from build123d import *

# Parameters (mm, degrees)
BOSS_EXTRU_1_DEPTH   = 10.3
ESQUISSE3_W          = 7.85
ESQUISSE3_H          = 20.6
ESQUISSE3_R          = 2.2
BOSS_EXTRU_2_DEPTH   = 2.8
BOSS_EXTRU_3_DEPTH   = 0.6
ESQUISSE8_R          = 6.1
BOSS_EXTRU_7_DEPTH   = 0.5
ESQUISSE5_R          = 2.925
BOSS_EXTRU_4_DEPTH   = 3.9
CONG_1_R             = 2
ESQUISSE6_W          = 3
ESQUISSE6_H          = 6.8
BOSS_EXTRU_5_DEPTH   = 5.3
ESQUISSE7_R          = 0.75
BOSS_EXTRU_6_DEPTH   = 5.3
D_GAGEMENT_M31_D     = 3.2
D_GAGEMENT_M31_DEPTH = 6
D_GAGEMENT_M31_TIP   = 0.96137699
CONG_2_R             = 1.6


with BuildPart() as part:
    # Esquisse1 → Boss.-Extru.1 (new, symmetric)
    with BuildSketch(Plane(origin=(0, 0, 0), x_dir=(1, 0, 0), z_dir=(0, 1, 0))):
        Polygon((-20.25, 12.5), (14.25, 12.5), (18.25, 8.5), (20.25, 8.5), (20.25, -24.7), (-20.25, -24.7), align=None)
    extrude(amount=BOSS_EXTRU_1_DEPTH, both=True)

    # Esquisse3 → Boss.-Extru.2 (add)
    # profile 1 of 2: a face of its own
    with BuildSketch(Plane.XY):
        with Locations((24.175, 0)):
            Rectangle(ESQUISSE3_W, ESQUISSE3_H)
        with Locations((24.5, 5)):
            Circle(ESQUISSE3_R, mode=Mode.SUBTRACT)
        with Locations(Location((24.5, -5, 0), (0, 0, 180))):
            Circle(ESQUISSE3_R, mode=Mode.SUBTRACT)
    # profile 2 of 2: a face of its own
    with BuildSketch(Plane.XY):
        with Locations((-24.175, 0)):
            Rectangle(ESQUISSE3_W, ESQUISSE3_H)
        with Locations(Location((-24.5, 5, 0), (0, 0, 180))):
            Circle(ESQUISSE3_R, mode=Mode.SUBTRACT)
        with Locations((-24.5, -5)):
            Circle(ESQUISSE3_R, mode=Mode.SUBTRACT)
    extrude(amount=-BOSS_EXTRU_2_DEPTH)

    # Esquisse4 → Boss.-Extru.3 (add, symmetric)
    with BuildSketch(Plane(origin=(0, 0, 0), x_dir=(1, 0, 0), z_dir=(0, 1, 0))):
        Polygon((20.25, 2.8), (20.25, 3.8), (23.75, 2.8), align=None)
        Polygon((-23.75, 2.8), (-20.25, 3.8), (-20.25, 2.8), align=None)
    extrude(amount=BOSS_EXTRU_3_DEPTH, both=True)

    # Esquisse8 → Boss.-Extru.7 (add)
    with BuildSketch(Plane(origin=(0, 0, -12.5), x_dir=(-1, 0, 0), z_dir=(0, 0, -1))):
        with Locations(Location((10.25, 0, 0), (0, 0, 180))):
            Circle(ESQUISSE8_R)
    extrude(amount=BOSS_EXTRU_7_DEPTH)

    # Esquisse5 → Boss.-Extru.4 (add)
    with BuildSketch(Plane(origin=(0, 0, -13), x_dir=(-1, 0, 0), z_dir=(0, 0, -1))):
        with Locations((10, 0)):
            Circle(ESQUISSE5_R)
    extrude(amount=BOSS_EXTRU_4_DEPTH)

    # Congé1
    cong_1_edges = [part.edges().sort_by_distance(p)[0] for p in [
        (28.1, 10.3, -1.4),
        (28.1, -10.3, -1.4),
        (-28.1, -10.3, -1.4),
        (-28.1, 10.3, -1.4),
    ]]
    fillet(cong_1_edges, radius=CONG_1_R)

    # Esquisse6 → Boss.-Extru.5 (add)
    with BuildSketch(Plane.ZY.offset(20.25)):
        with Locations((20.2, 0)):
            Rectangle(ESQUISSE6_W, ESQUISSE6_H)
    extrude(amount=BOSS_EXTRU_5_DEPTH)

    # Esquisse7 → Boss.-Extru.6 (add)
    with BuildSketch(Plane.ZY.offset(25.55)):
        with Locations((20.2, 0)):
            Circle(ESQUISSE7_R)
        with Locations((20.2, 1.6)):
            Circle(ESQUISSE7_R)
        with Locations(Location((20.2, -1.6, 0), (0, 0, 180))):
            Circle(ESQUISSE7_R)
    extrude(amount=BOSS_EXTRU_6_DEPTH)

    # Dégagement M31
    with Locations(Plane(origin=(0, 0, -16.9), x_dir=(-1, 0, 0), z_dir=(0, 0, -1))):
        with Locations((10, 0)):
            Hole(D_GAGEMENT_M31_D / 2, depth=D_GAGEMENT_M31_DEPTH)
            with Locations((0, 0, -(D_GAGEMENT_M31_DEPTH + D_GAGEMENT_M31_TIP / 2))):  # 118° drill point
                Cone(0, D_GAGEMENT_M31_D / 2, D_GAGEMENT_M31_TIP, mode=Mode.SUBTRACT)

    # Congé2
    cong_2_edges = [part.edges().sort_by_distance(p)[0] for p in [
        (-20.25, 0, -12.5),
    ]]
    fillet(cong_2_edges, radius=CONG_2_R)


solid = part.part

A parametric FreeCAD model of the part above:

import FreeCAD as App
import Part
import Sketcher

V = App.Vector
Q = App.Units.Quantity


def edges_at(feature, points):
    """Names of the edges that pass closest to the given points."""
    edges = feature.Shape.Edges
    near = lambda p: min(range(len(edges)), key=lambda i: edges[i].distToShape(Part.Vertex(*p))[0])
    return sorted({f"Edge{near(p) + 1}" for p in points})

doc = App.newDocument("Part")
params = doc.addObject("Spreadsheet::Sheet", "Params")
for row, (alias, value) in enumerate([
    ("sketch1_width", "2 mm"),
    ("sketch1_width2", "34.5 mm"),
    ("sketch1_width3", "40.5 mm"),
    ("sketch1_height", "37.2 mm"),
    ("pad1_length", "20.6 mm"),
    ("sketch2_diameter", "4.4 mm"),
    ("sketch2_height", "20.6 mm"),
    ("sketch2_width", "7.85 mm"),
    ("pad2_length", "2.8 mm"),
    ("sketch3_height", "1 mm"),
    ("sketch3_width", "3.5 mm"),
    ("pad3_length", "1.2 mm"),
    ("sketch4_diameter", "12.2 mm"),
    ("pad4_length", "0.5 mm"),
    ("sketch5_diameter", "5.85 mm"),
    ("pad5_length", "3.9 mm"),
    ("fillet_radius", "2 mm"),
    ("sketch6_height", "3 mm"),
    ("sketch6_width", "6.8 mm"),
    ("pad6_length", "5.3 mm"),
    ("sketch7_diameter", "1.5 mm"),
    ("pad7_length", "5.3 mm"),
    ("sketch8_diameter", "3.2 mm"),
    ("hole_diameter", "3.2 mm"),
    ("hole_depth", "6 mm"),
    ("fillet2_radius", "1.6 mm"),
], start=1):
    params.set(f"A{row}", alias)
    params.set(f"B{row}", "=" + value)
    params.setAlias(f"B{row}", alias)

body = doc.addObject("PartDesign::Body", "Body")

# Sketch on XZ plane
sketch1 = doc.addObject("Sketcher::SketchObject", "Sketch")
body.addObject(sketch1)
sketch1.AttachmentSupport = (doc.XZ_Plane, [""])
sketch1.MapMode = "FlatFace"
sketch1.addGeometry([
    Part.LineSegment(V(14.2, -12.5, 0), V(-20.2, -12.5, 0)),  # 0
    Part.LineSegment(V(-20.2, -12.5, 0), V(-20.2, 24.7, 0)),  # 1
    Part.LineSegment(V(-20.2, 24.7, 0), V(20.2, 24.7, 0)),  # 2
    Part.LineSegment(V(20.2, 24.7, 0), V(20.2, -8.5, 0)),  # 3
    Part.LineSegment(V(20.2, -8.5, 0), V(18.2, -8.5, 0)),  # 4
    Part.LineSegment(V(18.2, -8.5, 0), V(14.2, -12.5, 0)),  # 5
], False)
sketch1.addConstraint([
    Sketcher.Constraint("Coincident", 0, 2, 1, 1),
    Sketcher.Constraint("Coincident", 1, 2, 2, 1),
    Sketcher.Constraint("Coincident", 2, 2, 3, 1),
    Sketcher.Constraint("Coincident", 3, 2, 4, 1),
    Sketcher.Constraint("Coincident", 4, 2, 5, 1),
    Sketcher.Constraint("Coincident", 5, 2, 0, 1),
    Sketcher.Constraint("Horizontal", 0),
    Sketcher.Constraint("Vertical", 1),
    Sketcher.Constraint("Horizontal", 2),
    Sketcher.Constraint("Vertical", 3),
    Sketcher.Constraint("Horizontal", 4),
    Sketcher.Constraint("DistanceX", 4, 2, 4, 1, 2.0),
    Sketcher.Constraint("Angle", 5, Q("-135 deg")),
    Sketcher.Constraint("DistanceX", 0, 2, 0, 1, 34.5),
    Sketcher.Constraint("DistanceX", 2, 1, 2, 2, 40.5),
    Sketcher.Constraint("DistanceY", 1, 1, 1, 2, 37.2),
    Sketcher.Constraint("DistanceY", 0, 2, -1, 1, 12.5),
    Sketcher.Constraint("DistanceX", 0, 2, -1, 1, 20.25),
])
sketch1.setExpression("Constraints[11]", "Params.sketch1_width")
sketch1.setExpression("Constraints[13]", "Params.sketch1_width2")
sketch1.setExpression("Constraints[14]", "Params.sketch1_width3")
sketch1.setExpression("Constraints[15]", "Params.sketch1_height")
pad1 = doc.addObject("PartDesign::Pad", "Pad")
body.addObject(pad1)
pad1.Profile = sketch1
pad1.setExpression("Length", "Params.pad1_length")
pad1.Midplane = True

# Sketch on XY plane
sketch2 = doc.addObject("Sketcher::SketchObject", "Sketch001")
body.addObject(sketch2)
sketch2.AttachmentSupport = (doc.XY_Plane, [""])
sketch2.MapMode = "FlatFace"
sketch2.addGeometry([
    Part.LineSegment(V(20.2, 10.3, 0), V(20.2, -10.3, 0)),  # 0
    Part.LineSegment(V(20.2, -10.3, 0), V(28.1, -10.3, 0)),  # 1
    Part.LineSegment(V(28.1, -10.3, 0), V(28.1, 10.3, 0)),  # 2
    Part.LineSegment(V(28.1, 10.3, 0), V(20.2, 10.3, 0)),  # 3
    Part.Circle(V(24.5, -5, 0), V(0, 0, 1), 2.2),  # 4
    Part.Circle(V(24.5, 5, 0), V(0, 0, 1), 2.2),  # 5
    Part.LineSegment(V(-28.1, 10.3, 0), V(-28.1, -10.3, 0)),  # 6
    Part.LineSegment(V(-28.1, -10.3, 0), V(-20.2, -10.3, 0)),  # 7
    Part.LineSegment(V(-20.2, -10.3, 0), V(-20.2, 10.3, 0)),  # 8
    Part.LineSegment(V(-20.2, 10.3, 0), V(-28.1, 10.3, 0)),  # 9
    Part.Circle(V(-24.5, -5, 0), V(0, 0, 1), 2.2),  # 10
    Part.Circle(V(-24.5, 5, 0), V(0, 0, 1), 2.2),  # 11
], False)
sketch2.addConstraint([
    Sketcher.Constraint("Coincident", 0, 2, 1, 1),
    Sketcher.Constraint("Coincident", 1, 2, 2, 1),
    Sketcher.Constraint("Coincident", 2, 2, 3, 1),
    Sketcher.Constraint("Coincident", 3, 2, 0, 1),
    Sketcher.Constraint("Coincident", 6, 2, 7, 1),
    Sketcher.Constraint("Coincident", 7, 2, 8, 1),
    Sketcher.Constraint("Coincident", 8, 2, 9, 1),
    Sketcher.Constraint("Coincident", 9, 2, 6, 1),
    Sketcher.Constraint("Vertical", 0),
    Sketcher.Constraint("Horizontal", 1),
    Sketcher.Constraint("Vertical", 2),
    Sketcher.Constraint("Horizontal", 3),
    Sketcher.Constraint("Vertical", 6),
    Sketcher.Constraint("Horizontal", 7),
    Sketcher.Constraint("Vertical", 8),
    Sketcher.Constraint("Horizontal", 9),
    Sketcher.Constraint("Equal", 4, 5),
    Sketcher.Constraint("Equal", 5, 10),
    Sketcher.Constraint("Equal", 10, 11),
    Sketcher.Constraint("Symmetric", 5, 3, 10, 3, -1, 1),
    Sketcher.Constraint("Symmetric", 4, 3, 11, 3, -1, 1),
    Sketcher.Constraint("Symmetric", 2, 2, 6, 2, -1, 1),
    Sketcher.Constraint("Symmetric", 0, 2, 8, 2, -1, 1),
    Sketcher.Constraint("Symmetric", 4, 3, 10, 3, -2),
    Sketcher.Constraint("Horizontal", 1, 2, 6, 2),
    Sketcher.Constraint("Diameter", 4, 4.4),
    Sketcher.Constraint("DistanceY", 0, 2, 0, 1, 20.6),
    Sketcher.Constraint("DistanceY", 4, 3, -1, 1, 5.0),
    Sketcher.Constraint("DistanceX", 10, 3, 4, 3, 49.0),
    Sketcher.Constraint("DistanceX", 1, 1, 1, 2, 7.85),
    Sketcher.Constraint("DistanceX", -1, 1, 1, 2, 28.1),
])
sketch2.setExpression("Constraints[25]", "Params.sketch2_diameter")
sketch2.setExpression("Constraints[26]", "Params.sketch2_height")
sketch2.setExpression("Constraints[29]", "Params.sketch2_width")
pad2 = doc.addObject("PartDesign::Pad", "Pad001")
body.addObject(pad2)
pad2.Profile = sketch2
pad2.setExpression("Length", "Params.pad2_length")
pad2.Reversed = True

# Sketch on XZ plane
sketch3 = doc.addObject("Sketcher::SketchObject", "Sketch002")
body.addObject(sketch3)
sketch3.AttachmentSupport = (doc.XZ_Plane, [""])
sketch3.MapMode = "FlatFace"
sketch3.addGeometry([
    Part.LineSegment(V(20.2, -3.8, 0), V(20.2, -2.8, 0)),  # 0
    Part.LineSegment(V(20.2, -2.8, 0), V(23.8, -2.8, 0)),  # 1
    Part.LineSegment(V(23.8, -2.8, 0), V(20.2, -3.8, 0)),  # 2
    Part.LineSegment(V(-20.2, -3.8, 0), V(-23.8, -2.8, 0)),  # 3
    Part.LineSegment(V(-23.8, -2.8, 0), V(-20.2, -2.8, 0)),  # 4
    Part.LineSegment(V(-20.2, -2.8, 0), V(-20.2, -3.8, 0)),  # 5
], False)
sketch3.addConstraint([
    Sketcher.Constraint("Coincident", 0, 2, 1, 1),
    Sketcher.Constraint("Coincident", 1, 2, 2, 1),
    Sketcher.Constraint("Coincident", 2, 2, 0, 1),
    Sketcher.Constraint("Coincident", 3, 2, 4, 1),
    Sketcher.Constraint("Coincident", 4, 2, 5, 1),
    Sketcher.Constraint("Coincident", 5, 2, 3, 1),
    Sketcher.Constraint("Vertical", 0),
    Sketcher.Constraint("Horizontal", 1),
    Sketcher.Constraint("Horizontal", 4),
    Sketcher.Constraint("Vertical", 5),
    Sketcher.Constraint("Symmetric", 1, 2, 3, 2, -2),
    Sketcher.Constraint("Symmetric", 2, 2, 5, 2, -2),
    Sketcher.Constraint("DistanceY", 0, 1, 0, 2, 1.0),
    Sketcher.Constraint("DistanceX", 1, 1, 1, 2, 3.5),
    Sketcher.Constraint("DistanceX", 3, 2, 0, 2, 44.0),
    Sketcher.Constraint("DistanceY", 0, 2, -1, 1, 2.8),
])
sketch3.setExpression("Constraints[12]", "Params.sketch3_height")
sketch3.setExpression("Constraints[13]", "Params.sketch3_width")
pad3 = doc.addObject("PartDesign::Pad", "Pad002")
body.addObject(pad3)
pad3.Profile = sketch3
pad3.setExpression("Length", "Params.pad3_length")
pad3.Midplane = True

# Sketch on XY plane
sketch4 = doc.addObject("Sketcher::SketchObject", "Sketch003")
body.addObject(sketch4)
sketch4.AttachmentSupport = (doc.XY_Plane, [""])
sketch4.MapMode = "FlatFace"
sketch4.AttachmentOffset = App.Placement(V(0, 0, -12.5), App.Rotation())
sketch4.addGeometry(Part.Circle(V(-10, 0, 0), V(0, 0, 1), 6), False)
sketch4.addConstraint([
    Sketcher.Constraint("PointOnObject", 0, 3, -1),
    Sketcher.Constraint("Diameter", 0, 12.2),
    Sketcher.Constraint("DistanceX", 0, 3, -1, 1, 10.25),
])
sketch4.setExpression("Constraints[1]", "Params.sketch4_diameter")
pad4 = doc.addObject("PartDesign::Pad", "Pad003")
body.addObject(pad4)
pad4.Profile = sketch4
pad4.setExpression("Length", "Params.pad4_length")
pad4.Reversed = True

# Sketch on XY plane
sketch5 = doc.addObject("Sketcher::SketchObject", "Sketch004")
body.addObject(sketch5)
sketch5.AttachmentSupport = (doc.XY_Plane, [""])
sketch5.MapMode = "FlatFace"
sketch5.AttachmentOffset = App.Placement(V(0, 0, -13), App.Rotation())
sketch5.addGeometry(Part.Circle(V(-10, 0, 0), V(0, 0, 1), 2.9), False)
sketch5.addConstraint([
    Sketcher.Constraint("PointOnObject", 0, 3, -1),
    Sketcher.Constraint("Diameter", 0, 5.85),
    Sketcher.Constraint("DistanceX", 0, 3, -1, 1, 10.0),
])
sketch5.setExpression("Constraints[1]", "Params.sketch5_diameter")
pad5 = doc.addObject("PartDesign::Pad", "Pad004")
body.addObject(pad5)
pad5.Profile = sketch5
pad5.setExpression("Length", "Params.pad5_length")
pad5.Reversed = True
doc.recompute()

fillet = doc.addObject("PartDesign::Fillet", "Fillet")
body.addObject(fillet)
fillet.Base = (pad5, edges_at(pad5, [
    (28.1, 10.3, -1.4),
    (28.1, -10.3, -1.4),
    (-28.1, -10.3, -1.4),
    (-28.1, 10.3, -1.4),
]))
fillet.setExpression("Radius", "Params.fillet_radius")

# Sketch on YZ plane
sketch6 = doc.addObject("Sketcher::SketchObject", "Sketch005")
body.addObject(sketch6)
sketch6.AttachmentSupport = (doc.YZ_Plane, [""])
sketch6.MapMode = "FlatFace"
sketch6.AttachmentOffset = App.Placement(V(0, 0, -20.25), App.Rotation())
sketch6.addGeometry([
    Part.LineSegment(V(3.4, 18.7, 0), V(-3.4, 18.7, 0)),
    Part.LineSegment(V(-3.4, 18.7, 0), V(-3.4, 21.7, 0)),
    Part.LineSegment(V(-3.4, 21.7, 0), V(3.4, 21.7, 0)),
    Part.LineSegment(V(3.4, 21.7, 0), V(3.4, 18.7, 0)),
], False)
sketch6.addConstraint([
    Sketcher.Constraint("Coincident", 0, 2, 1, 1),
    Sketcher.Constraint("Coincident", 1, 2, 2, 1),
    Sketcher.Constraint("Coincident", 2, 2, 3, 1),
    Sketcher.Constraint("Coincident", 3, 2, 0, 1),
    Sketcher.Constraint("Horizontal", 0),
    Sketcher.Constraint("Vertical", 1),
    Sketcher.Constraint("Horizontal", 2),
    Sketcher.Constraint("Vertical", 3),
    Sketcher.Constraint("DistanceY", 1, 1, 1, 2, 3.0),
    Sketcher.Constraint("DistanceX", 0, 2, 0, 1, 6.8),
    Sketcher.Constraint("DistanceX", 0, 2, -1, 1, 3.4),
    Sketcher.Constraint("DistanceY", -1, 1, 0, 2, 18.7),
])
sketch6.setExpression("Constraints[8]", "Params.sketch6_height")
sketch6.setExpression("Constraints[9]", "Params.sketch6_width")
pad6 = doc.addObject("PartDesign::Pad", "Pad005")
body.addObject(pad6)
pad6.Profile = sketch6
pad6.setExpression("Length", "Params.pad6_length")
pad6.Reversed = True

# Sketch on YZ plane
sketch7 = doc.addObject("Sketcher::SketchObject", "Sketch006")
body.addObject(sketch7)
sketch7.AttachmentSupport = (doc.YZ_Plane, [""])
sketch7.MapMode = "FlatFace"
sketch7.AttachmentOffset = App.Placement(V(0, 0, -25.55), App.Rotation())
sketch7.addGeometry([
    Part.Circle(V(0, 20.2, 0), V(0, 0, 1), 0.8),
    Part.Circle(V(1.6, 20.2, 0), V(0, 0, 1), 0.8),
    Part.Circle(V(-1.6, 20.2, 0), V(0, 0, 1), 0.8),
], False)
sketch7.addConstraint([
    Sketcher.Constraint("Equal", 0, 1),
    Sketcher.Constraint("Equal", 1, 2),
    Sketcher.Constraint("Symmetric", 1, 3, 2, 3, -2),
    Sketcher.Constraint("PointOnObject", 0, 3, -2),
    Sketcher.Constraint("Horizontal", 0, 3, 1, 3),
    Sketcher.Constraint("Diameter", 0, 1.5),
    Sketcher.Constraint("DistanceY", -1, 1, 0, 3, 20.2),
    Sketcher.Constraint("DistanceX", -1, 1, 1, 3, 1.6),
])
sketch7.setExpression("Constraints[5]", "Params.sketch7_diameter")
pad7 = doc.addObject("PartDesign::Pad", "Pad006")
body.addObject(pad7)
pad7.Profile = sketch7
pad7.setExpression("Length", "Params.pad7_length")
pad7.Reversed = True

# Sketch on XY plane
sketch8 = doc.addObject("Sketcher::SketchObject", "Sketch007")
body.addObject(sketch8)
sketch8.AttachmentSupport = (doc.XY_Plane, [""])
sketch8.MapMode = "FlatFace"
sketch8.AttachmentOffset = App.Placement(V(0, 0, -16.9), App.Rotation())
sketch8.addGeometry(Part.Circle(V(-10, 0, 0), V(0, 0, 1), 1.6), False)
sketch8.addConstraint([
    Sketcher.Constraint("PointOnObject", 0, 3, -1),
    Sketcher.Constraint("Diameter", 0, 3.2),
    Sketcher.Constraint("DistanceX", 0, 3, -1, 1, 10.0),
])
sketch8.setExpression("Constraints[1]", "Params.sketch8_diameter")
doc.recompute()
hole = doc.addObject("PartDesign::Hole", "Hole")
body.addObject(hole)
hole.Profile = sketch8
hole.ThreadType = "None"
hole.setExpression("Diameter", "Params.hole_diameter")
hole.DepthType = "Dimension"
hole.setExpression("Depth", "Params.hole_depth")
hole.DrillPoint = "Angled"
hole.DrillPointAngle = 118
hole.Reversed = True
doc.recompute()

fillet2 = doc.addObject("PartDesign::Fillet", "Fillet001")
body.addObject(fillet2)
fillet2.Base = (hole, edges_at(hole, [(-20.25, 0, -12.5)]))
fillet2.setExpression("Radius", "Params.fillet2_radius")

doc.recompute()
